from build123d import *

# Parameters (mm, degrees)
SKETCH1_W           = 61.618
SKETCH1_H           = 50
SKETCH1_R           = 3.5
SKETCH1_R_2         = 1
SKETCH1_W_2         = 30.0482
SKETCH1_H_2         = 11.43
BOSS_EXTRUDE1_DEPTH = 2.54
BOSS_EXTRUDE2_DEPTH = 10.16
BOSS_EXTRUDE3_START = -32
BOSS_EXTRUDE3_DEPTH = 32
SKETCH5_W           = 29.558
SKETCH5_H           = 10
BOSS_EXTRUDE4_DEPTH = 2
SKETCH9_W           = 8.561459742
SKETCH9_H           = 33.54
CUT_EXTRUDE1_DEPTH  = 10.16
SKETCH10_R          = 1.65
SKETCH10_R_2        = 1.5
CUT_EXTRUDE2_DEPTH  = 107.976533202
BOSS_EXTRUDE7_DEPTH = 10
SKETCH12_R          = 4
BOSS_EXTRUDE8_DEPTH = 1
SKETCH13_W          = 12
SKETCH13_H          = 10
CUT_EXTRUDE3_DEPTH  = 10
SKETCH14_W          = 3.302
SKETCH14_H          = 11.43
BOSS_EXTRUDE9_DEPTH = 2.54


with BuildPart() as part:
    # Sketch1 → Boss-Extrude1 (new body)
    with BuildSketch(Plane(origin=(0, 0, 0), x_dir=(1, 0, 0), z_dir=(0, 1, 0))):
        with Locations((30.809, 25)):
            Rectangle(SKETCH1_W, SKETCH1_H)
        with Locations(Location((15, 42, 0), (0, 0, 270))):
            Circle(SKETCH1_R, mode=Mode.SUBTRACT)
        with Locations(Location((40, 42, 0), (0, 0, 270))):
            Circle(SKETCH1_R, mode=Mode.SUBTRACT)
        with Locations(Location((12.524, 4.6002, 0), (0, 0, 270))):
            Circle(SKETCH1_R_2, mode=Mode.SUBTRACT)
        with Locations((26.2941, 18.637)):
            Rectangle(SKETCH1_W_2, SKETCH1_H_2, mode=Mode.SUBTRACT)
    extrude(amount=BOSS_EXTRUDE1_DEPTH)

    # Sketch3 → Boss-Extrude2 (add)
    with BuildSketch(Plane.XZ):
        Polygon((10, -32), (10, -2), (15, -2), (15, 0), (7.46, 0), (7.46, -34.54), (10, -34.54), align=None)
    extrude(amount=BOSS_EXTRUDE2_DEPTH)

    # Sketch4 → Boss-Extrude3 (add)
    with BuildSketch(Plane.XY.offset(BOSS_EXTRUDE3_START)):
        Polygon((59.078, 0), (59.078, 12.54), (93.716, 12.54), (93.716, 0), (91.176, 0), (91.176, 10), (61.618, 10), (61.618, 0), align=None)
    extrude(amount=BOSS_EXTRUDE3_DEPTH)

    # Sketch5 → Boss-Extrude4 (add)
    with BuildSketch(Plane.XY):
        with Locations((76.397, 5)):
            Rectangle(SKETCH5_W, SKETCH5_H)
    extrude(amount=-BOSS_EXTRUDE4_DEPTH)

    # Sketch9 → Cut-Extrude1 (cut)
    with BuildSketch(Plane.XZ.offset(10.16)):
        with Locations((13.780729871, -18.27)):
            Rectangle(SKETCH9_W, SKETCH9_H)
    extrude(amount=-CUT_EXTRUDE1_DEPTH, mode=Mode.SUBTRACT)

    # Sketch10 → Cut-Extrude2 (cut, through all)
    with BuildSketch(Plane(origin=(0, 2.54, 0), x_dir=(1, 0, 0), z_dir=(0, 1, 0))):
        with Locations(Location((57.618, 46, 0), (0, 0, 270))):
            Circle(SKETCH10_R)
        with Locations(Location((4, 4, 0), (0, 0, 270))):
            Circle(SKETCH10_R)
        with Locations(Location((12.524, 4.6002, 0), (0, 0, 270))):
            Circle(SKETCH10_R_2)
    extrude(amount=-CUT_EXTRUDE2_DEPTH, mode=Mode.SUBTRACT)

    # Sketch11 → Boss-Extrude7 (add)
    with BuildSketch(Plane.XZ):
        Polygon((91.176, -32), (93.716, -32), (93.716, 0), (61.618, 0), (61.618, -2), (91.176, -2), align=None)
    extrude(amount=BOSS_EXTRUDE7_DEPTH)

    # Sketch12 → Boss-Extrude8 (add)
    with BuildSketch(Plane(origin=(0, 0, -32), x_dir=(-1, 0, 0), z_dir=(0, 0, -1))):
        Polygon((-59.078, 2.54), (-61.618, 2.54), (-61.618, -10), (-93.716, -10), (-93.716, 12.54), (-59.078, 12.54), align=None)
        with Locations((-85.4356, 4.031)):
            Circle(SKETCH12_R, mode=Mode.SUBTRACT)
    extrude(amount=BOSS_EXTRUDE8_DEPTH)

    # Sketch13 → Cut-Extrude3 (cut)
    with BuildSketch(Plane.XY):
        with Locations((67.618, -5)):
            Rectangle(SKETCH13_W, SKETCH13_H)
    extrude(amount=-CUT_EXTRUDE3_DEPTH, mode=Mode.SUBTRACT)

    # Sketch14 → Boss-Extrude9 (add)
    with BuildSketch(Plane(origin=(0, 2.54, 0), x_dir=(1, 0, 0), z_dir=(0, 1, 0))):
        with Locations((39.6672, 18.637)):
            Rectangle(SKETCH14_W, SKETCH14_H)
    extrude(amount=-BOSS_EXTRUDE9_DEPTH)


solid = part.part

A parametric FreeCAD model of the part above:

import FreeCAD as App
import Part
import Sketcher

V = App.Vector
Q = App.Units.Quantity


def add_polygon(sketch, points):
    """Adds a closed chain of lines whose ends are joined by coincident constraints."""
    first, n = sketch.GeometryCount, len(points)
    for a, b in zip(points, points[1:] + points[:1]):
        sketch.addGeometry(Part.LineSegment(App.Vector(*a, 0), App.Vector(*b, 0)), False)
    for i in range(n):
        sketch.addConstraint(Sketcher.Constraint("Coincident", first + i, 2, first + (i + 1) % n, 1))

doc = App.newDocument("Part")
params = doc.addObject("Spreadsheet::Sheet", "Params")
for row, (alias, value) in enumerate([
    ("sketch1_diameter", "2 mm"),
    ("sketch1_diameter2", "7 mm"),
    ("sketch1_height", "50 mm"),
    ("sketch1_height2", "11.43 mm"),
    ("pad1_length", "2.54 mm"),
    ("sketch2_width", "5 mm"),
    ("sketch2_height", "2 mm"),
    ("sketch2_width2", "7.54 mm"),
    ("sketch2_height2", "34.54 mm"),
    ("pad2_length", "10.16 mm"),
    ("sketch3_height", "10 mm"),
    ("sketch3_width", "2.54 mm"),
    ("sketch3_height2", "12.54 mm"),
    ("pad3_length", "32 mm"),
    ("sketch4_height", "10 mm"),
    ("pad4_length", "2 mm"),
    ("sketch5_height", "33.54 mm"),
    ("pocket1_length", "10.16 mm"),
    ("sketch6_diameter", "3 mm"),
    ("sketch6_diameter2", "3.3 mm"),
    ("sketch7_height", "32 mm"),
    ("sketch7_height2", "2 mm"),
    ("sketch7_width", "2.54 mm"),
    ("pad5_length", "10 mm"),
    ("sketch8_diameter", "8 mm"),
    ("sketch8_height", "10 mm"),
    ("sketch8_width", "2.54 mm"),
    ("sketch8_height2", "22.54 mm"),
    ("pad6_length", "1 mm"),
    ("sketch9_width", "12 mm"),
    ("sketch9_height", "10 mm"),
    ("pocket3_length", "10 mm"),
    ("sketch10_height", "11.43 mm"),
    ("pad7_length", "2.54 mm"),
], start=1):
    params.set(f"A{row}", alias)
    params.set(f"B{row}", "=" + value)
    params.setAlias(f"B{row}", alias)

body = doc.addObject("PartDesign::Body", "Body")

sketch1 = doc.addObject("Sketcher::SketchObject", "Sketch")
body.addObject(sketch1)
sketch1.AttachmentSupport = (doc.XZ_Plane, [""])
sketch1.MapMode = "FlatFace"
add_polygon(sketch1, [(0, -50), (0, 0), (61.618, 0), (61.618, -50)])
sketch1.addGeometry(Part.Circle(V(12.524, -4.6002, 0), V(0, 0, 1), 1), False)
add_polygon(sketch1, [(41.3182, -12.922), (11.27, -12.922), (11.27, -24.352), (41.3182, -24.352)])
sketch1.addGeometry(Part.Circle(V(15, -42, 0), V(0, 0, 1), 3.5), False)
sketch1.addGeometry(Part.Circle(V(40, -42, 0), V(0, 0, 1), 3.5), False)
sketch1.addConstraint(Sketcher.Constraint("Vertical", 0))
sketch1.addConstraint(Sketcher.Constraint("Horizontal", 1))
sketch1.addConstraint(Sketcher.Constraint("Vertical", 2))
sketch1.addConstraint(Sketcher.Constraint("Horizontal", 3))
sketch1.addConstraint(Sketcher.Constraint("Horizontal", 5))
sketch1.addConstraint(Sketcher.Constraint("Vertical", 6))
sketch1.addConstraint(Sketcher.Constraint("Horizontal", 7))
sketch1.addConstraint(Sketcher.Constraint("Vertical", 8))
sketch1.addConstraint(Sketcher.Constraint("Coincident", 0, 2, -1, 1))
sketch1.addConstraint(Sketcher.Constraint("Equal", 9, 10))
sketch1.addConstraint(Sketcher.Constraint("Horizontal", 9, 3, 10, 3))
sketch1.addConstraint(Sketcher.Constraint("Diameter", 4, Q("2 mm")))
sketch1.addConstraint(Sketcher.Constraint("Diameter", 9, Q("7 mm")))
sketch1.addConstraint(Sketcher.Constraint("DistanceY", 0, 1, 0, 2, Q("50 mm")))
sketch1.addConstraint(Sketcher.Constraint("DistanceX", -1, 1, 9, 3, Q("15 mm")))
sketch1.addConstraint(Sketcher.Constraint("DistanceY", 9, 3, -1, 1, Q("42 mm")))
sketch1.addConstraint(Sketcher.Constraint("DistanceX", -1, 1, 10, 3, Q("40 mm")))
sketch1.addConstraint(Sketcher.Constraint("DistanceY", 6, 2, 6, 1, Q("11.43 mm")))
sketch1.addConstraint(Sketcher.Constraint("DistanceX", 1, 1, 1, 2, Q("61.618 mm")))
sketch1.addConstraint(Sketcher.Constraint("DistanceX", -1, 1, 5, 2, Q("11.27 mm")))
sketch1.addConstraint(Sketcher.Constraint("DistanceX", 5, 2, 5, 1, Q("30.0482 mm")))
sketch1.addConstraint(Sketcher.Constraint("DistanceX", -1, 1, 4, 3, Q("12.524 mm")))
sketch1.addConstraint(Sketcher.Constraint("DistanceY", 5, 2, -1, 1, Q("12.922 mm")))
sketch1.addConstraint(Sketcher.Constraint("DistanceY", 4, 3, -1, 1, Q("4.6002 mm")))
sketch1.setExpression("Constraints[19]", "Params.sketch1_diameter")
sketch1.setExpression("Constraints[20]", "Params.sketch1_diameter2")
sketch1.setExpression("Constraints[21]", "Params.sketch1_height")
sketch1.setExpression("Constraints[25]", "Params.sketch1_height2")
pad1 = doc.addObject("PartDesign::Pad", "Pad")
body.addObject(pad1)
pad1.Profile = sketch1
pad1.setExpression("Length", "Params.pad1_length")
pad1.Reversed = True

sketch2 = doc.addObject("Sketcher::SketchObject", "Sketch001")
body.addObject(sketch2)
sketch2.AttachmentSupport = (doc.XZ_Plane, [""])
sketch2.MapMode = "FlatFace"
add_polygon(sketch2, [(10, -2), (15, -2), (15, 0), (7.46, 0), (7.46, -34.54), (10, -34.54)])
sketch2.addConstraint(Sketcher.Constraint("Horizontal", 0))
sketch2.addConstraint(Sketcher.Constraint("Vertical", 1))
sketch2.addConstraint(Sketcher.Constraint("Horizontal", 2))
sketch2.addConstraint(Sketcher.Constraint("Vertical", 3))
sketch2.addConstraint(Sketcher.Constraint("Horizontal", 4))
sketch2.addConstraint(Sketcher.Constraint("Vertical", 5))
sketch2.addConstraint(Sketcher.Constraint("PointOnObject", 1, 2, -1))
sketch2.addConstraint(Sketcher.Constraint("DistanceX", 0, 1, 0, 2, Q("5 mm")))
sketch2.addConstraint(Sketcher.Constraint("DistanceY", 1, 1, 1, 2, Q("2 mm")))
sketch2.addConstraint(Sketcher.Constraint("DistanceX", -1, 1, 0, 2, Q("15 mm")))
sketch2.addConstraint(Sketcher.Constraint("DistanceX", 2, 2, 2, 1, Q("7.54 mm")))
sketch2.addConstraint(Sketcher.Constraint("DistanceY", 3, 2, 3, 1, Q("34.54 mm")))
sketch2.setExpression("Constraints[13]", "Params.sketch2_width")
sketch2.setExpression("Constraints[14]", "Params.sketch2_height")
sketch2.setExpression("Constraints[16]", "Params.sketch2_width2")
sketch2.setExpression("Constraints[17]", "Params.sketch2_height2")
pad2 = doc.addObject("PartDesign::Pad", "Pad001")
body.addObject(pad2)
pad2.Profile = sketch2
pad2.setExpression("Length", "Params.pad2_length")

sketch3 = doc.addObject("Sketcher::SketchObject", "Sketch002")
body.addObject(sketch3)
sketch3.AttachmentSupport = (doc.XY_Plane, [""])
sketch3.MapMode = "FlatFace"
sketch3.AttachmentOffset = App.Placement(V(0, 0, -32), App.Rotation())
add_polygon(sketch3, [(59.078, 12.54), (59.078, 0), (61.618, 0), (61.618, 10), (91.176, 10), (91.176, 0), (93.716, 0), (93.716, 12.54)])
sketch3.addConstraint(Sketcher.Constraint("Vertical", 0))
sketch3.addConstraint(Sketcher.Constraint("Horizontal", 1))
sketch3.addConstraint(Sketcher.Constraint("Vertical", 2))
sketch3.addConstraint(Sketcher.Constraint("Horizontal", 3))
sketch3.addConstraint(Sketcher.Constraint("Vertical", 4))
sketch3.addConstraint(Sketcher.Constraint("Horizontal", 5))
sketch3.addConstraint(Sketcher.Constraint("Vertical", 6))
sketch3.addConstraint(Sketcher.Constraint("Horizontal", 7))
sketch3.addConstraint(Sketcher.Constraint("PointOnObject", 0, 2, -1))
sketch3.addConstraint(Sketcher.Constraint("PointOnObject", 4, 2, -1))
sketch3.addConstraint(Sketcher.Constraint("Equal", 1, 5))
sketch3.addConstraint(Sketcher.Constraint("DistanceY", 2, 1, 2, 2, Q("10 mm")))
sketch3.addConstraint(Sketcher.Constraint("DistanceX", 1, 1, 1, 2, Q("2.54 mm")))
sketch3.addConstraint(Sketcher.Constraint("DistanceY", 0, 2, 0, 1, Q("12.54 mm")))
sketch3.addConstraint(Sketcher.Constraint("DistanceX", 3, 1, 3, 2, Q("29.558 mm")))
sketch3.addConstraint(Sketcher.Constraint("DistanceX", -1, 1, 0, 2, Q("59.078 mm")))
sketch3.setExpression("Constraints[19]", "Params.sketch3_height")
sketch3.setExpression("Constraints[20]", "Params.sketch3_width")
sketch3.setExpression("Constraints[21]", "Params.sketch3_height2")
pad3 = doc.addObject("PartDesign::Pad", "Pad002")
body.addObject(pad3)
pad3.Profile = sketch3
pad3.setExpression("Length", "Params.pad3_length")

sketch4 = doc.addObject("Sketcher::SketchObject", "Sketch003")
body.addObject(sketch4)
sketch4.AttachmentSupport = (doc.XY_Plane, [""])
sketch4.MapMode = "FlatFace"
add_polygon(sketch4, [(61.618, 10), (61.618, 0), (91.176, 0), (91.176, 10)])
sketch4.addConstraint(Sketcher.Constraint("Vertical", 0))
sketch4.addConstraint(Sketcher.Constraint("Horizontal", 1))
sketch4.addConstraint(Sketcher.Constraint("Vertical", 2))
sketch4.addConstraint(Sketcher.Constraint("Horizontal", 3))
sketch4.addConstraint(Sketcher.Constraint("PointOnObject", 0, 2, -1))
sketch4.addConstraint(Sketcher.Constraint("DistanceY", 0, 2, 0, 1, Q("10 mm")))
sketch4.addConstraint(Sketcher.Constraint("DistanceX", 1, 1, 1, 2, Q("29.558 mm")))
sketch4.addConstraint(Sketcher.Constraint("DistanceX", -1, 1, 0, 2, Q("61.618 mm")))
sketch4.setExpression("Constraints[9]", "Params.sketch4_height")
pad4 = doc.addObject("PartDesign::Pad", "Pad003")
body.addObject(pad4)
pad4.Profile = sketch4
pad4.setExpression("Length", "Params.pad4_length")
pad4.Reversed = True

sketch5 = doc.addObject("Sketcher::SketchObject", "Sketch004")
body.addObject(sketch5)
sketch5.AttachmentSupport = (doc.XZ_Plane, [""])
sketch5.MapMode = "FlatFace"
sketch5.AttachmentOffset = App.Placement(V(0, 0, 10.16), App.Rotation())
add_polygon(sketch5, [(9.5, -1.5), (9.5, -35.04), (18.06146, -35.04), (18.06146, -1.5)])
sketch5.addConstraint(Sketcher.Constraint("Vertical", 0))
sketch5.addConstraint(Sketcher.Constraint("Horizontal", 1))
sketch5.addConstraint(Sketcher.Constraint("Vertical", 2))
sketch5.addConstraint(Sketcher.Constraint("Horizontal", 3))
sketch5.addConstraint(Sketcher.Constraint("DistanceY", 0, 2, 0, 1, Q("33.54 mm")))
sketch5.addConstraint(Sketcher.Constraint("DistanceX", -1, 1, 0, 2, Q("9.5 mm")))
sketch5.addConstraint(Sketcher.Constraint("DistanceY", 2, 2, -1, 1, Q("1.5 mm")))
sketch5.addConstraint(Sketcher.Constraint("DistanceX", 1, 1, 1, 2, Q("8.56146 mm")))
sketch5.setExpression("Constraints[8]", "Params.sketch5_height")
pocket1 = doc.addObject("PartDesign::Pocket", "Pocket")
body.addObject(pocket1)
pocket1.Profile = sketch5
pocket1.setExpression("Length", "Params.pocket1_length")

sketch6 = doc.addObject("Sketcher::SketchObject", "Sketch005")
body.addObject(sketch6)
sketch6.AttachmentSupport = (doc.XZ_Plane, [""])
sketch6.MapMode = "FlatFace"
sketch6.AttachmentOffset = App.Placement(V(0, 0, -2.54), App.Rotation())
sketch6.addGeometry(Part.Circle(V(57.618, -46, 0), V(0, 0, 1), 1.65), False)
sketch6.addGeometry(Part.Circle(V(4, -4, 0), V(0, 0, 1), 1.65), False)
sketch6.addGeometry(Part.Circle(V(12.524, -4.6002, 0), V(0, 0, 1), 1.5), False)
sketch6.addConstraint(Sketcher.Constraint("Equal", 0, 1))
sketch6.addConstraint(Sketcher.Constraint("Diameter", 2, Q("3 mm")))
sketch6.addConstraint(Sketcher.Constraint("Diameter", 0, Q("3.3 mm")))
sketch6.addConstraint(Sketcher.Constraint("DistanceY", 0, 3, -1, 1, Q("46 mm")))
sketch6.addConstraint(Sketcher.Constraint("DistanceX", -1, 1, 1, 3, Q("4 mm")))
sketch6.addConstraint(Sketcher.Constraint("DistanceY", 1, 3, -1, 1, Q("4 mm")))
sketch6.addConstraint(Sketcher.Constraint("DistanceX", -1, 1, 0, 3, Q("57.618 mm")))
sketch6.addConstraint(Sketcher.Constraint("DistanceX", -1, 1, 2, 3, Q("12.524 mm")))
sketch6.addConstraint(Sketcher.Constraint("DistanceY", 2, 3, -1, 1, Q("4.6002 mm")))
sketch6.setExpression("Constraints[1]", "Params.sketch6_diameter")
sketch6.setExpression("Constraints[2]", "Params.sketch6_diameter2")
pocket2 = doc.addObject("PartDesign::Pocket", "Pocket001")
body.addObject(pocket2)
pocket2.Profile = sketch6
pocket2.Type = "ThroughAll"
pocket2.Reversed = True

sketch7 = doc.addObject("Sketcher::SketchObject", "Sketch006")
body.addObject(sketch7)
sketch7.AttachmentSupport = (doc.XZ_Plane, [""])
sketch7.MapMode = "FlatFace"
add_polygon(sketch7, [(91.176, -32), (93.716, -32), (93.716, 0), (61.618, 0), (61.618, -2), (91.176, -2)])
sketch7.addConstraint(Sketcher.Constraint("Horizontal", 0))
sketch7.addConstraint(Sketcher.Constraint("Vertical", 1))
sketch7.addConstraint(Sketcher.Constraint("Horizontal", 2))
sketch7.addConstraint(Sketcher.Constraint("Vertical", 3))
sketch7.addConstraint(Sketcher.Constraint("Horizontal", 4))
sketch7.addConstraint(Sketcher.Constraint("Vertical", 5))
sketch7.addConstraint(Sketcher.Constraint("PointOnObject", 1, 2, -1))
sketch7.addConstraint(Sketcher.Constraint("DistanceY", 1, 1, 1, 2, Q("32 mm")))
sketch7.addConstraint(Sketcher.Constraint("DistanceY", 3, 2, 3, 1, Q("2 mm")))
sketch7.addConstraint(Sketcher.Constraint("DistanceX", 0, 1, 0, 2, Q("2.54 mm")))
sketch7.addConstraint(Sketcher.Constraint("DistanceX", 2, 2, 2, 1, Q("32.098 mm")))
sketch7.addConstraint(Sketcher.Constraint("DistanceX", -1, 1, 0, 2, Q("93.716 mm")))
sketch7.setExpression("Constraints[13]", "Params.sketch7_height")
sketch7.setExpression("Constraints[14]", "Params.sketch7_height2")
sketch7.setExpression("Constraints[15]", "Params.sketch7_width")
pad5 = doc.addObject("PartDesign::Pad", "Pad004")
body.addObject(pad5)
pad5.Profile = sketch7
pad5.setExpression("Length", "Params.pad5_length")

sketch8 = doc.addObject("Sketcher::SketchObject", "Sketch007")
body.addObject(sketch8)
sketch8.AttachmentSupport = (doc.XY_Plane, [""])
sketch8.MapMode = "FlatFace"
sketch8.AttachmentOffset = App.Placement(V(0, 0, -32), App.Rotation())
add_polygon(sketch8, [(61.618, 2.54), (59.078, 2.54), (59.078, 12.54), (93.716, 12.54), (93.716, -10), (61.618, -10)])
sketch8.addGeometry(Part.Circle(V(85.4356, 4.031, 0), V(0, 0, 1), 4), False)
sketch8.addConstraint(Sketcher.Constraint("Horizontal", 0))
sketch8.addConstraint(Sketcher.Constraint("Vertical", 1))
sketch8.addConstraint(Sketcher.Constraint("Horizontal", 2))
sketch8.addConstraint(Sketcher.Constraint("Vertical", 3))
sketch8.addConstraint(Sketcher.Constraint("Horizontal", 4))
sketch8.addConstraint(Sketcher.Constraint("Vertical", 5))
sketch8.addConstraint(Sketcher.Constraint("Diameter", 6, Q("8 mm")))
sketch8.addConstraint(Sketcher.Constraint("DistanceY", 1, 1, 1, 2, Q("10 mm")))
sketch8.addConstraint(Sketcher.Constraint("DistanceY", 3, 2, -1, 1, Q("10 mm")))
sketch8.addConstraint(Sketcher.Constraint("DistanceX", 0, 2, 0, 1, Q("2.54 mm")))
sketch8.addConstraint(Sketcher.Constraint("DistanceY", 3, 2, 3, 1, Q("22.54 mm")))
sketch8.addConstraint(Sketcher.Constraint("DistanceX", 2, 1, 2, 2, Q("34.638 mm")))
sketch8.addConstraint(Sketcher.Constraint("DistanceY", -1, 1, 6, 3, Q("4.031 mm")))
sketch8.addConstraint(Sketcher.Constraint("DistanceX", -1, 1, 0, 2, Q("59.078 mm")))
sketch8.addConstraint(Sketcher.Constraint("DistanceX", -1, 1, 6, 3, Q("85.4356 mm")))
sketch8.setExpression("Constraints[12]", "Params.sketch8_diameter")
sketch8.setExpression("Constraints[13]", "Params.sketch8_height")
sketch8.setExpression("Constraints[15]", "Params.sketch8_width")
sketch8.setExpression("Constraints[16]", "Params.sketch8_height2")
pad6 = doc.addObject("PartDesign::Pad", "Pad005")
body.addObject(pad6)
pad6.Profile = sketch8
pad6.setExpression("Length", "Params.pad6_length")
pad6.Reversed = True

sketch9 = doc.addObject("Sketcher::SketchObject", "Sketch008")
body.addObject(sketch9)
sketch9.AttachmentSupport = (doc.XY_Plane, [""])
sketch9.MapMode = "FlatFace"
add_polygon(sketch9, [(61.618, 0), (61.618, -10), (73.618, -10), (73.618, 0)])
sketch9.addConstraint(Sketcher.Constraint("Vertical", 0))
sketch9.addConstraint(Sketcher.Constraint("Horizontal", 1))
sketch9.addConstraint(Sketcher.Constraint("Vertical", 2))
sketch9.addConstraint(Sketcher.Constraint("Horizontal", 3))
sketch9.addConstraint(Sketcher.Constraint("PointOnObject", 2, 2, -1))
sketch9.addConstraint(Sketcher.Constraint("DistanceX", 1, 1, 1, 2, Q("12 mm")))
sketch9.addConstraint(Sketcher.Constraint("DistanceY", 0, 2, 0, 1, Q("10 mm")))
sketch9.addConstraint(Sketcher.Constraint("DistanceX", -1, 1, 0, 2, Q("61.618 mm")))
sketch9.setExpression("Constraints[9]", "Params.sketch9_width")
sketch9.setExpression("Constraints[10]", "Params.sketch9_height")
pocket3 = doc.addObject("PartDesign::Pocket", "Pocket002")
body.addObject(pocket3)
pocket3.Profile = sketch9
pocket3.setExpression("Length", "Params.pocket3_length")

sketch10 = doc.addObject("Sketcher::SketchObject", "Sketch009")
body.addObject(sketch10)
sketch10.AttachmentSupport = (doc.XZ_Plane, [""])
sketch10.MapMode = "FlatFace"
sketch10.AttachmentOffset = App.Placement(V(0, 0, -2.54), App.Rotation())
add_polygon(sketch10, [(38.0162, -24.352), (38.0162, -12.922), (41.3182, -12.922), (41.3182, -24.352)])
sketch10.addConstraint(Sketcher.Constraint("Vertical", 0))
sketch10.addConstraint(Sketcher.Constraint("Horizontal", 1))
sketch10.addConstraint(Sketcher.Constraint("Vertical", 2))
sketch10.addConstraint(Sketcher.Constraint("Horizontal", 3))
sketch10.addConstraint(Sketcher.Constraint("DistanceY", 0, 1, 0, 2, Q("11.43 mm")))
sketch10.addConstraint(Sketcher.Constraint("DistanceX", 1, 1, 1, 2, Q("3.302 mm")))
sketch10.addConstraint(Sketcher.Constraint("DistanceY", 0, 2, -1, 1, Q("12.922 mm")))
sketch10.addConstraint(Sketcher.Constraint("DistanceX", -1, 1, 0, 2, Q("38.0162 mm")))
sketch10.setExpression("Constraints[8]", "Params.sketch10_height")
pad7 = doc.addObject("PartDesign::Pad", "Pad006")
body.addObject(pad7)
pad7.Profile = sketch10
pad7.setExpression("Length", "Params.pad7_length")

doc.recompute()
